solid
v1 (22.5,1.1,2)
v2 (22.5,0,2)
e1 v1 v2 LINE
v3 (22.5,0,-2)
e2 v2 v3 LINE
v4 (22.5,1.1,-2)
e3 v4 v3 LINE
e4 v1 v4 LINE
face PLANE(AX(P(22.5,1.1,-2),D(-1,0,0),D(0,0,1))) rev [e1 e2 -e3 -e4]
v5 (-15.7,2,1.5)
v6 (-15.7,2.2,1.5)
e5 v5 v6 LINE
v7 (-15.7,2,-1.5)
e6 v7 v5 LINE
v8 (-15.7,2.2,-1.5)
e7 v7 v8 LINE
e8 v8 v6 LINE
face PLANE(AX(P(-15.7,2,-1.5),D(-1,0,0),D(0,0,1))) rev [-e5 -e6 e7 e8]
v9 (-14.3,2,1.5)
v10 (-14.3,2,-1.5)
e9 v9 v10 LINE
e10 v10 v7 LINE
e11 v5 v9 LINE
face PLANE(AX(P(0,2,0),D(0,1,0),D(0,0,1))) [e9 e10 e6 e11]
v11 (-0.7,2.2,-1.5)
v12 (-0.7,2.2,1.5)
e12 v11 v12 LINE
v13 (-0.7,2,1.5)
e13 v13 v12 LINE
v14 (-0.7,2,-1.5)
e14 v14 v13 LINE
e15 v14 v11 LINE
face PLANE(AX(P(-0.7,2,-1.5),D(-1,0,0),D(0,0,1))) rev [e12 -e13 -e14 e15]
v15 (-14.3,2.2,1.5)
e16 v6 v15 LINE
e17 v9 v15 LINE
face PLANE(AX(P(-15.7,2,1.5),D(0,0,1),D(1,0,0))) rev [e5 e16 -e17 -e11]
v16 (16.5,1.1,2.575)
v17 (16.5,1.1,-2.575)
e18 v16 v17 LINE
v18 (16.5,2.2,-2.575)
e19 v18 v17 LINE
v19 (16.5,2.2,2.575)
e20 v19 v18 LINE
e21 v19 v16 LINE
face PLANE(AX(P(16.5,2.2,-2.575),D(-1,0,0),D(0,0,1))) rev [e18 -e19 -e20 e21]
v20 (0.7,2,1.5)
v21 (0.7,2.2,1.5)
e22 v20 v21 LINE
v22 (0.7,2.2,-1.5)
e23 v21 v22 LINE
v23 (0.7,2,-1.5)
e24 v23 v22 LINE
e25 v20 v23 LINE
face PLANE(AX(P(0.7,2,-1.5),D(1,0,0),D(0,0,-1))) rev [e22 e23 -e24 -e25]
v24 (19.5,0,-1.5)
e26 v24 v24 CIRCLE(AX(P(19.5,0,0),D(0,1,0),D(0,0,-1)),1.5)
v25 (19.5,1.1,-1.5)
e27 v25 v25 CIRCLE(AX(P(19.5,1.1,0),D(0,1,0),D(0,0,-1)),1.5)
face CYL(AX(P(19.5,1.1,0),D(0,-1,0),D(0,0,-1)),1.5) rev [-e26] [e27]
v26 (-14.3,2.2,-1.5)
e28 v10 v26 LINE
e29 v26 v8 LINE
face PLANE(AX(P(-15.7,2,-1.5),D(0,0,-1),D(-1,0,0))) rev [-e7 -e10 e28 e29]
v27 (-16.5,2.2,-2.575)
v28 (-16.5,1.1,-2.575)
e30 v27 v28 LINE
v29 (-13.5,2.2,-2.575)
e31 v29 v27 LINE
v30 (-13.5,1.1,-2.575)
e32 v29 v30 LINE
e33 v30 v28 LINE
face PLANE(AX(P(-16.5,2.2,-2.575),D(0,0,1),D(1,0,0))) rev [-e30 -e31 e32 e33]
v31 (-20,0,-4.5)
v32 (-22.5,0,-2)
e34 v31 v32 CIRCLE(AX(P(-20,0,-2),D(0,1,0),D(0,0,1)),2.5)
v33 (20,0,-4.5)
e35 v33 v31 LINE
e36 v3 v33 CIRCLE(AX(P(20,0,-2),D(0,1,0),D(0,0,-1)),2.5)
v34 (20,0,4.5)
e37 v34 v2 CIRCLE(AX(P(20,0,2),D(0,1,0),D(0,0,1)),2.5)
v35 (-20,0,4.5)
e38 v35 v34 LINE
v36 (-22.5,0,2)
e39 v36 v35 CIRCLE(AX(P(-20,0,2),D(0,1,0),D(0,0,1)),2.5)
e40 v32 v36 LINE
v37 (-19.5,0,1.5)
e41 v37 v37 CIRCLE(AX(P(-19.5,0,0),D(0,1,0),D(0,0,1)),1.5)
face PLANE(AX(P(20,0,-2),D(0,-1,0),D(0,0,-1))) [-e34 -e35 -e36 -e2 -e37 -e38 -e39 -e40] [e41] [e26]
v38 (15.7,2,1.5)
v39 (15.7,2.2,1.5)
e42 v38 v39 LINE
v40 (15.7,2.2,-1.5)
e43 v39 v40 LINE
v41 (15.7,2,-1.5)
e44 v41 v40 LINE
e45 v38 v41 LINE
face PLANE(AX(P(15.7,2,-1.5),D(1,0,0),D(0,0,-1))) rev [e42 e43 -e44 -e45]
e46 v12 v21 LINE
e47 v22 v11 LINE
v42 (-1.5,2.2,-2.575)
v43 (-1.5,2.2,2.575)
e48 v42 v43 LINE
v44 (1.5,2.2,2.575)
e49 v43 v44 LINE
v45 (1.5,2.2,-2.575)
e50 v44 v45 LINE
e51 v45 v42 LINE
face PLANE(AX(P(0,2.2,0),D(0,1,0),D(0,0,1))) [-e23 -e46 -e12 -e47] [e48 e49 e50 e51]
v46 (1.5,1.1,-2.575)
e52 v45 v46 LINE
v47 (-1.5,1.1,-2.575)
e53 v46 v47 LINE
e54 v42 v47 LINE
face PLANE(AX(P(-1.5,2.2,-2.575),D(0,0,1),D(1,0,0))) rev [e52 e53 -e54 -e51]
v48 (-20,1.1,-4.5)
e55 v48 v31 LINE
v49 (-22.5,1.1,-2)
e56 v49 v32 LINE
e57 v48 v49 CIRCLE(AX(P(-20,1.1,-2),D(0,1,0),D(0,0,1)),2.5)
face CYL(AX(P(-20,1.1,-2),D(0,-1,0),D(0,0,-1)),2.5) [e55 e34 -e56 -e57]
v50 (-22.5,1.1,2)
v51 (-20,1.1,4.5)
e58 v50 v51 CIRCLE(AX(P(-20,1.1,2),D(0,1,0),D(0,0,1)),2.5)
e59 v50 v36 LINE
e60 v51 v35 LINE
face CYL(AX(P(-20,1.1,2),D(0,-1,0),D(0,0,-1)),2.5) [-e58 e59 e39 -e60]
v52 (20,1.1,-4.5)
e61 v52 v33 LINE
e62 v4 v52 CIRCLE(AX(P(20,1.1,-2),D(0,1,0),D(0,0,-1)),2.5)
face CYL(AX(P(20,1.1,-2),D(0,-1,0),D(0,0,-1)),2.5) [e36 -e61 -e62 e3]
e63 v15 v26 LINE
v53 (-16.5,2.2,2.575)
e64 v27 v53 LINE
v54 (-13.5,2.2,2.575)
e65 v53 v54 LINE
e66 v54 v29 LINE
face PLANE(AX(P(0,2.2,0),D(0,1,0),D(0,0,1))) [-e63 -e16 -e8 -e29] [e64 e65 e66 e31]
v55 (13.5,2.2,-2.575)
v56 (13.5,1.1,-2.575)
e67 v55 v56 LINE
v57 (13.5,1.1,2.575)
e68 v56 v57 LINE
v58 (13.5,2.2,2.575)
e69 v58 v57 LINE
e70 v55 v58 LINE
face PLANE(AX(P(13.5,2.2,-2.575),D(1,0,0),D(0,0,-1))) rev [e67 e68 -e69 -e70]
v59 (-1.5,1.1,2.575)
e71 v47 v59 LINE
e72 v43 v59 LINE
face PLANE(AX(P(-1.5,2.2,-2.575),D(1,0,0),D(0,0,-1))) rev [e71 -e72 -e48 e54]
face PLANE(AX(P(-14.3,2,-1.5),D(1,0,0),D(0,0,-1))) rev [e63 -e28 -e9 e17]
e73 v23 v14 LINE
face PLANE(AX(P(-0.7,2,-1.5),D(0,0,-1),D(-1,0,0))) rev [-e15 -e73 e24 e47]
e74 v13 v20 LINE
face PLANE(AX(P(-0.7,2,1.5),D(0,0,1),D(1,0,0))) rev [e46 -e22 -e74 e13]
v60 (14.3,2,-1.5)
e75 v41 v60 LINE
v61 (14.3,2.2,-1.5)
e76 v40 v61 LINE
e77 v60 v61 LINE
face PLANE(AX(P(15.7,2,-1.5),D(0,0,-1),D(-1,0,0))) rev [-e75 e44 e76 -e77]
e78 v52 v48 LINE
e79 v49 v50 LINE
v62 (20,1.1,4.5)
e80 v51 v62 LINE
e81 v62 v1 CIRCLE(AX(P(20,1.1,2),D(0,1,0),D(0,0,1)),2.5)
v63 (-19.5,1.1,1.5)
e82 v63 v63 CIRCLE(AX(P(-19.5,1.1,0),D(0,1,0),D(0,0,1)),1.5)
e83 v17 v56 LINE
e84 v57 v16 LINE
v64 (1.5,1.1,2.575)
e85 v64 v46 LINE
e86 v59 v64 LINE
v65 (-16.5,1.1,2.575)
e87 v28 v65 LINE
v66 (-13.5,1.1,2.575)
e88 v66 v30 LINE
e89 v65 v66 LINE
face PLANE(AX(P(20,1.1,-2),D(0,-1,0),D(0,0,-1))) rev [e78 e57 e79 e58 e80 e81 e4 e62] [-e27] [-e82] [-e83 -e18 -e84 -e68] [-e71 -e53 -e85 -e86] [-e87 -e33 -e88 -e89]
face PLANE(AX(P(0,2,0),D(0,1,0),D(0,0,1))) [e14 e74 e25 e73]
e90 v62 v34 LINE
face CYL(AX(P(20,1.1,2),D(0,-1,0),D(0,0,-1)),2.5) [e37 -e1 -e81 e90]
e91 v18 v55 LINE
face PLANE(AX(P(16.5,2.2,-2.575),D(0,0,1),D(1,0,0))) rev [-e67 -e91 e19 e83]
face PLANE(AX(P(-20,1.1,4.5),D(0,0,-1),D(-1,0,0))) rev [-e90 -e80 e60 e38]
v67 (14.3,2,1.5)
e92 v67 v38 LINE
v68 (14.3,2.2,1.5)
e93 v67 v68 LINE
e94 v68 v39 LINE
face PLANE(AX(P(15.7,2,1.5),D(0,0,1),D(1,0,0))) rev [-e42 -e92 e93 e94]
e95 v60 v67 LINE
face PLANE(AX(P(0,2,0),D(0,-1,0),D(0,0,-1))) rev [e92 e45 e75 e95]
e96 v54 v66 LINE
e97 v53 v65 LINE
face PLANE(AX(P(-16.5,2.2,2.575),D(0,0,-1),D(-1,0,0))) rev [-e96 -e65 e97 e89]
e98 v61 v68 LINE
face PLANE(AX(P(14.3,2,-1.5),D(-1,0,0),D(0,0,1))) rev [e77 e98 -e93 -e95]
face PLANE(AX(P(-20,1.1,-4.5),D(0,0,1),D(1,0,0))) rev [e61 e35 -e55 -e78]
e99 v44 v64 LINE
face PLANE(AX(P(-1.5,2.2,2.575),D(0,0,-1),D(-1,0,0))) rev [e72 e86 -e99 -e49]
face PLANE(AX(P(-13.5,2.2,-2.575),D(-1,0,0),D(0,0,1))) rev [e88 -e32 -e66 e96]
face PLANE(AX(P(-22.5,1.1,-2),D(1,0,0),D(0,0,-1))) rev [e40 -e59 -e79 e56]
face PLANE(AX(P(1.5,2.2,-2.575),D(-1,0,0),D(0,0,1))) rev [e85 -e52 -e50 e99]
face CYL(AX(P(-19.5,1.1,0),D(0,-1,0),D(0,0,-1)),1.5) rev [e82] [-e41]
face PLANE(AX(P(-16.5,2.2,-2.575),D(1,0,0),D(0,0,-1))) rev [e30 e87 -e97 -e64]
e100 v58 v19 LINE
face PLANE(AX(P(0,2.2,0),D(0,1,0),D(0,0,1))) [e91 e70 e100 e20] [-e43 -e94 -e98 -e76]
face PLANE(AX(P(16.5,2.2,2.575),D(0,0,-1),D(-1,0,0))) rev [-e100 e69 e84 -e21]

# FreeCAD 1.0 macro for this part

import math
import FreeCAD as App
import Part
import Sketcher
from FreeCAD import Vector
Q = App.Units.Quantity

doc = App.newDocument("Part")
params = doc.addObject("Spreadsheet::Sheet", "Params")
for row, (alias, value) in enumerate([
    ("sketch1_diameter", "3 mm"),
    ("sketch1_radius", "2.5 mm"),
    ("sketch1_width", "40 mm"),
    ("sketch1_height", "4 mm"),
    ("pad1_length", "1.1 mm"),
    ("sketch2_width", "3 mm"),
    ("sketch2_height", "5.15 mm"),
    ("pad2_length", "1.1 mm"),
    ("sketch3_height", "3 mm"),
    ("sketch3_width", "1.4 mm"),
    ("pocket1_length", "0.2 mm"),
], start=1):
    params.set(f"A{row}", alias)
    params.set(f"B{row}", "=" + value)
    params.setAlias(f"B{row}", alias)

body = doc.addObject("PartDesign::Body", "Body")

# Sketch on XZ plane
sketch1 = body.newObject("Sketcher::SketchObject", "Sketch")
sketch1.AttachmentSupport = (doc.getObject("XZ_Plane"), [""])
sketch1.MapMode = "FlatFace"
sketch1.addGeometry([
    Part.LineSegment(Vector(20, -4.5, 0), Vector(-20, -4.5, 0)),  # 0
    Part.ArcOfCircle(Part.Circle(Vector(-20, -2, 0), Vector(0, 0, 1), 2.5), math.radians(180), math.radians(270)),  # 1
    Part.LineSegment(Vector(-22.5, -2, 0), Vector(-22.5, 2, 0)),  # 2
    Part.ArcOfCircle(Part.Circle(Vector(-20, 2, 0), Vector(0, 0, 1), 2.5), math.radians(90), math.radians(180)),  # 3
    Part.LineSegment(Vector(-20, 4.5, 0), Vector(20, 4.5, 0)),  # 4
    Part.ArcOfCircle(Part.Circle(Vector(20, 2, 0), Vector(0, 0, 1), 2.5), math.radians(0), math.radians(90)),  # 5
    Part.LineSegment(Vector(22.5, 2, 0), Vector(22.5, -2, 0)),  # 6
    Part.ArcOfCircle(Part.Circle(Vector(20, -2, 0), Vector(0, 0, 1), 2.5), math.radians(-90), math.radians(0)),  # 7
    Part.Circle(Vector(19.5, 0, 0), Vector(0, 0, 1), 1.5),  # 8
    Part.Circle(Vector(-19.5, 0, 0), Vector(0, 0, 1), 1.5),  # 9
], False)
sketch1.addConstraint([
    Sketcher.Constraint("Tangent", 0, 2, 1, 2),
    Sketcher.Constraint("Tangent", 1, 1, 2, 1),
    Sketcher.Constraint("Tangent", 2, 2, 3, 2),
    Sketcher.Constraint("Tangent", 3, 1, 4, 1),
    Sketcher.Constraint("Tangent", 4, 2, 5, 2),
    Sketcher.Constraint("Tangent", 5, 1, 6, 1),
    Sketcher.Constraint("Tangent", 6, 2, 7, 2),
    Sketcher.Constraint("Tangent", 7, 1, 0, 1),
    Sketcher.Constraint("Horizontal", 0),
    Sketcher.Constraint("Vertical", 2),
    Sketcher.Constraint("Horizontal", 4),
    Sketcher.Constraint("Vertical", 6),
    Sketcher.Constraint("Equal", 1, 3),
    Sketcher.Constraint("Equal", 3, 5),
    Sketcher.Constraint("Equal", 5, 7),
    Sketcher.Constraint("Equal", 8, 9),
    Sketcher.Constraint("Symmetric", 1, 3, 5, 3, -1, 1),
    Sketcher.Constraint("Symmetric", 8, 3, 9, 3, -1, 1),
    Sketcher.Constraint("PointOnObject", 8, 3, -1),
    Sketcher.Constraint("Diameter", 8, Q("3 mm")),
    Sketcher.Constraint("Radius", 1, Q("2.5 mm")),
    Sketcher.Constraint("DistanceX", 0, 2, 0, 1, Q("40 mm")),
    Sketcher.Constraint("DistanceY", 2, 1, 2, 2, Q("4 mm")),
    Sketcher.Constraint("DistanceX", 9, 3, 8, 3, Q("39 mm")),
])
sketch1.setExpression("Constraints[19]", "Params.sketch1_diameter")
sketch1.setExpression("Constraints[20]", "Params.sketch1_radius")
sketch1.setExpression("Constraints[21]", "Params.sketch1_width")
sketch1.setExpression("Constraints[22]", "Params.sketch1_height")
pad1 = body.newObject("PartDesign::Pad", "Pad")
pad1.Profile = sketch1
pad1.setExpression("Length", "Params.pad1_length")
pad1.Reversed = True

# Sketch on XZ plane
sketch2 = body.newObject("Sketcher::SketchObject", "Sketch001")
sketch2.AttachmentSupport = (doc.getObject("XZ_Plane"), [""])
sketch2.MapMode = "FlatFace"
sketch2.AttachmentOffset = App.Placement(Vector(0, 0, -1.1), App.Rotation())
sketch2.addGeometry([
    Part.LineSegment(Vector(13.5, -2.6, 0), Vector(13.5, 2.6, 0)),  # 0
    Part.LineSegment(Vector(13.5, 2.6, 0), Vector(16.5, 2.6, 0)),  # 1
    Part.LineSegment(Vector(16.5, 2.6, 0), Vector(16.5, -2.6, 0)),  # 2
    Part.LineSegment(Vector(16.5, -2.6, 0), Vector(13.5, -2.6, 0)),  # 3
    Part.LineSegment(Vector(-16.5, -2.6, 0), Vector(-16.5, 2.6, 0)),  # 4
    Part.LineSegment(Vector(-16.5, 2.6, 0), Vector(-13.5, 2.6, 0)),  # 5
    Part.LineSegment(Vector(-13.5, 2.6, 0), Vector(-13.5, -2.6, 0)),  # 6
    Part.LineSegment(Vector(-13.5, -2.6, 0), Vector(-16.5, -2.6, 0)),  # 7
    Part.LineSegment(Vector(-1.5, -2.6, 0), Vector(-1.5, 2.6, 0)),  # 8
    Part.LineSegment(Vector(-1.5, 2.6, 0), Vector(1.5, 2.6, 0)),  # 9
    Part.LineSegment(Vector(1.5, 2.6, 0), Vector(1.5, -2.6, 0)),  # 10
    Part.LineSegment(Vector(1.5, -2.6, 0), Vector(-1.5, -2.6, 0)),  # 11
], False)
sketch2.addConstraint([
    Sketcher.Constraint("Coincident", 0, 2, 1, 1),
    Sketcher.Constraint("Coincident", 1, 2, 2, 1),
    Sketcher.Constraint("Coincident", 2, 2, 3, 1),
    Sketcher.Constraint("Coincident", 3, 2, 0, 1),
    Sketcher.Constraint("Coincident", 4, 2, 5, 1),
    Sketcher.Constraint("Coincident", 5, 2, 6, 1),
    Sketcher.Constraint("Coincident", 6, 2, 7, 1),
    Sketcher.Constraint("Coincident", 7, 2, 4, 1),
    Sketcher.Constraint("Coincident", 8, 2, 9, 1),
    Sketcher.Constraint("Coincident", 9, 2, 10, 1),
    Sketcher.Constraint("Coincident", 10, 2, 11, 1),
    Sketcher.Constraint("Coincident", 11, 2, 8, 1),
    Sketcher.Constraint("Vertical", 0),
    Sketcher.Constraint("Horizontal", 1),
    Sketcher.Constraint("Vertical", 2),
    Sketcher.Constraint("Horizontal", 3),
    Sketcher.Constraint("Vertical", 4),
    Sketcher.Constraint("Horizontal", 5),
    Sketcher.Constraint("Vertical", 6),
    Sketcher.Constraint("Horizontal", 7),
    Sketcher.Constraint("Vertical", 8),
    Sketcher.Constraint("Horizontal", 9),
    Sketcher.Constraint("Vertical", 10),
    Sketcher.Constraint("Horizontal", 11),
    Sketcher.Constraint("Symmetric", 2, 2, 4, 2, -1, 1),
    Sketcher.Constraint("Symmetric", 0, 2, 6, 2, -1, 1),
    Sketcher.Constraint("Symmetric", 8, 2, 10, 2, -1, 1),
    Sketcher.Constraint("Horizontal", 1, 2, 4, 2),
    Sketcher.Constraint("Horizontal", 5, 2, 8, 2),
    Sketcher.Constraint("Equal", 7, 9),
    Sketcher.Constraint("DistanceX", 1, 1, 1, 2, Q("3 mm")),
    Sketcher.Constraint("DistanceX", 4, 2, 0, 2, Q("30 mm")),
    Sketcher.Constraint("DistanceY", 0, 1, 0, 2, Q("5.15 mm")),
])
sketch2.setExpression("Constraints[30]", "Params.sketch2_width")
sketch2.setExpression("Constraints[32]", "Params.sketch2_height")
pad2 = body.newObject("PartDesign::Pad", "Pad001")
pad2.Profile = sketch2
pad2.setExpression("Length", "Params.pad2_length")
pad2.Reversed = True

# Sketch on XZ plane
sketch3 = body.newObject("Sketcher::SketchObject", "Sketch002")
sketch3.AttachmentSupport = (doc.getObject("XZ_Plane"), [""])
sketch3.MapMode = "FlatFace"
sketch3.AttachmentOffset = App.Placement(Vector(0, 0, -2.2), App.Rotation())
sketch3.addGeometry([
    Part.LineSegment(Vector(14.3, -1.5, 0), Vector(14.3, 1.5, 0)),  # 0
    Part.LineSegment(Vector(14.3, 1.5, 0), Vector(15.7, 1.5, 0)),  # 1
    Part.LineSegment(Vector(15.7, 1.5, 0), Vector(15.7, -1.5, 0)),  # 2
    Part.LineSegment(Vector(15.7, -1.5, 0), Vector(14.3, -1.5, 0)),  # 3
    Part.LineSegment(Vector(-15.7, -1.5, 0), Vector(-15.7, 1.5, 0)),  # 4
    Part.LineSegment(Vector(-15.7, 1.5, 0), Vector(-14.3, 1.5, 0)),  # 5
    Part.LineSegment(Vector(-14.3, 1.5, 0), Vector(-14.3, -1.5, 0)),  # 6
    Part.LineSegment(Vector(-14.3, -1.5, 0), Vector(-15.7, -1.5, 0)),  # 7
    Part.LineSegment(Vector(-0.7, -1.5, 0), Vector(-0.7, 1.5, 0)),  # 8
    Part.LineSegment(Vector(-0.7, 1.5, 0), Vector(0.7, 1.5, 0)),  # 9
    Part.LineSegment(Vector(0.7, 1.5, 0), Vector(0.7, -1.5, 0)),  # 10
    Part.LineSegment(Vector(0.7, -1.5, 0), Vector(-0.7, -1.5, 0)),  # 11
], False)
sketch3.addConstraint([
    Sketcher.Constraint("Coincident", 0, 2, 1, 1),
    Sketcher.Constraint("Coincident", 1, 2, 2, 1),
    Sketcher.Constraint("Coincident", 2, 2, 3, 1),
    Sketcher.Constraint("Coincident", 3, 2, 0, 1),
    Sketcher.Constraint("Coincident", 4, 2, 5, 1),
    Sketcher.Constraint("Coincident", 5, 2, 6, 1),
    Sketcher.Constraint("Coincident", 6, 2, 7, 1),
    Sketcher.Constraint("Coincident", 7, 2, 4, 1),
    Sketcher.Constraint("Coincident", 8, 2, 9, 1),
    Sketcher.Constraint("Coincident", 9, 2, 10, 1),
    Sketcher.Constraint("Coincident", 10, 2, 11, 1),
    Sketcher.Constraint("Coincident", 11, 2, 8, 1),
    Sketcher.Constraint("Vertical", 0),
    Sketcher.Constraint("Horizontal", 1),
    Sketcher.Constraint("Vertical", 2),
    Sketcher.Constraint("Horizontal", 3),
    Sketcher.Constraint("Vertical", 4),
    Sketcher.Constraint("Horizontal", 5),
    Sketcher.Constraint("Vertical", 6),
    Sketcher.Constraint("Horizontal", 7),
    Sketcher.Constraint("Vertical", 8),
    Sketcher.Constraint("Horizontal", 9),
    Sketcher.Constraint("Vertical", 10),
    Sketcher.Constraint("Horizontal", 11),
    Sketcher.Constraint("Symmetric", 2, 2, 4, 2, -1, 1),
    Sketcher.Constraint("Symmetric", 0, 2, 6, 2, -1, 1),
    Sketcher.Constraint("Symmetric", 8, 2, 10, 2, -1, 1),
    Sketcher.Constraint("Horizontal", 1, 2, 4, 2),
    Sketcher.Constraint("Horizontal", 5, 2, 8, 2),
    Sketcher.Constraint("Equal", 7, 9),
    Sketcher.Constraint("DistanceY", 0, 1, 0, 2, Q("3 mm")),
    Sketcher.Constraint("DistanceX", 1, 1, 1, 2, Q("1.4 mm")),
    Sketcher.Constraint("DistanceX", 4, 2, 0, 2, Q("30 mm")),
])
sketch3.setExpression("Constraints[30]", "Params.sketch3_height")
sketch3.setExpression("Constraints[31]", "Params.sketch3_width")
pocket1 = body.newObject("PartDesign::Pocket", "Pocket")
pocket1.Profile = sketch3
pocket1.setExpression("Length", "Params.pocket1_length")
pocket1.Reversed = True

doc.recompute()
